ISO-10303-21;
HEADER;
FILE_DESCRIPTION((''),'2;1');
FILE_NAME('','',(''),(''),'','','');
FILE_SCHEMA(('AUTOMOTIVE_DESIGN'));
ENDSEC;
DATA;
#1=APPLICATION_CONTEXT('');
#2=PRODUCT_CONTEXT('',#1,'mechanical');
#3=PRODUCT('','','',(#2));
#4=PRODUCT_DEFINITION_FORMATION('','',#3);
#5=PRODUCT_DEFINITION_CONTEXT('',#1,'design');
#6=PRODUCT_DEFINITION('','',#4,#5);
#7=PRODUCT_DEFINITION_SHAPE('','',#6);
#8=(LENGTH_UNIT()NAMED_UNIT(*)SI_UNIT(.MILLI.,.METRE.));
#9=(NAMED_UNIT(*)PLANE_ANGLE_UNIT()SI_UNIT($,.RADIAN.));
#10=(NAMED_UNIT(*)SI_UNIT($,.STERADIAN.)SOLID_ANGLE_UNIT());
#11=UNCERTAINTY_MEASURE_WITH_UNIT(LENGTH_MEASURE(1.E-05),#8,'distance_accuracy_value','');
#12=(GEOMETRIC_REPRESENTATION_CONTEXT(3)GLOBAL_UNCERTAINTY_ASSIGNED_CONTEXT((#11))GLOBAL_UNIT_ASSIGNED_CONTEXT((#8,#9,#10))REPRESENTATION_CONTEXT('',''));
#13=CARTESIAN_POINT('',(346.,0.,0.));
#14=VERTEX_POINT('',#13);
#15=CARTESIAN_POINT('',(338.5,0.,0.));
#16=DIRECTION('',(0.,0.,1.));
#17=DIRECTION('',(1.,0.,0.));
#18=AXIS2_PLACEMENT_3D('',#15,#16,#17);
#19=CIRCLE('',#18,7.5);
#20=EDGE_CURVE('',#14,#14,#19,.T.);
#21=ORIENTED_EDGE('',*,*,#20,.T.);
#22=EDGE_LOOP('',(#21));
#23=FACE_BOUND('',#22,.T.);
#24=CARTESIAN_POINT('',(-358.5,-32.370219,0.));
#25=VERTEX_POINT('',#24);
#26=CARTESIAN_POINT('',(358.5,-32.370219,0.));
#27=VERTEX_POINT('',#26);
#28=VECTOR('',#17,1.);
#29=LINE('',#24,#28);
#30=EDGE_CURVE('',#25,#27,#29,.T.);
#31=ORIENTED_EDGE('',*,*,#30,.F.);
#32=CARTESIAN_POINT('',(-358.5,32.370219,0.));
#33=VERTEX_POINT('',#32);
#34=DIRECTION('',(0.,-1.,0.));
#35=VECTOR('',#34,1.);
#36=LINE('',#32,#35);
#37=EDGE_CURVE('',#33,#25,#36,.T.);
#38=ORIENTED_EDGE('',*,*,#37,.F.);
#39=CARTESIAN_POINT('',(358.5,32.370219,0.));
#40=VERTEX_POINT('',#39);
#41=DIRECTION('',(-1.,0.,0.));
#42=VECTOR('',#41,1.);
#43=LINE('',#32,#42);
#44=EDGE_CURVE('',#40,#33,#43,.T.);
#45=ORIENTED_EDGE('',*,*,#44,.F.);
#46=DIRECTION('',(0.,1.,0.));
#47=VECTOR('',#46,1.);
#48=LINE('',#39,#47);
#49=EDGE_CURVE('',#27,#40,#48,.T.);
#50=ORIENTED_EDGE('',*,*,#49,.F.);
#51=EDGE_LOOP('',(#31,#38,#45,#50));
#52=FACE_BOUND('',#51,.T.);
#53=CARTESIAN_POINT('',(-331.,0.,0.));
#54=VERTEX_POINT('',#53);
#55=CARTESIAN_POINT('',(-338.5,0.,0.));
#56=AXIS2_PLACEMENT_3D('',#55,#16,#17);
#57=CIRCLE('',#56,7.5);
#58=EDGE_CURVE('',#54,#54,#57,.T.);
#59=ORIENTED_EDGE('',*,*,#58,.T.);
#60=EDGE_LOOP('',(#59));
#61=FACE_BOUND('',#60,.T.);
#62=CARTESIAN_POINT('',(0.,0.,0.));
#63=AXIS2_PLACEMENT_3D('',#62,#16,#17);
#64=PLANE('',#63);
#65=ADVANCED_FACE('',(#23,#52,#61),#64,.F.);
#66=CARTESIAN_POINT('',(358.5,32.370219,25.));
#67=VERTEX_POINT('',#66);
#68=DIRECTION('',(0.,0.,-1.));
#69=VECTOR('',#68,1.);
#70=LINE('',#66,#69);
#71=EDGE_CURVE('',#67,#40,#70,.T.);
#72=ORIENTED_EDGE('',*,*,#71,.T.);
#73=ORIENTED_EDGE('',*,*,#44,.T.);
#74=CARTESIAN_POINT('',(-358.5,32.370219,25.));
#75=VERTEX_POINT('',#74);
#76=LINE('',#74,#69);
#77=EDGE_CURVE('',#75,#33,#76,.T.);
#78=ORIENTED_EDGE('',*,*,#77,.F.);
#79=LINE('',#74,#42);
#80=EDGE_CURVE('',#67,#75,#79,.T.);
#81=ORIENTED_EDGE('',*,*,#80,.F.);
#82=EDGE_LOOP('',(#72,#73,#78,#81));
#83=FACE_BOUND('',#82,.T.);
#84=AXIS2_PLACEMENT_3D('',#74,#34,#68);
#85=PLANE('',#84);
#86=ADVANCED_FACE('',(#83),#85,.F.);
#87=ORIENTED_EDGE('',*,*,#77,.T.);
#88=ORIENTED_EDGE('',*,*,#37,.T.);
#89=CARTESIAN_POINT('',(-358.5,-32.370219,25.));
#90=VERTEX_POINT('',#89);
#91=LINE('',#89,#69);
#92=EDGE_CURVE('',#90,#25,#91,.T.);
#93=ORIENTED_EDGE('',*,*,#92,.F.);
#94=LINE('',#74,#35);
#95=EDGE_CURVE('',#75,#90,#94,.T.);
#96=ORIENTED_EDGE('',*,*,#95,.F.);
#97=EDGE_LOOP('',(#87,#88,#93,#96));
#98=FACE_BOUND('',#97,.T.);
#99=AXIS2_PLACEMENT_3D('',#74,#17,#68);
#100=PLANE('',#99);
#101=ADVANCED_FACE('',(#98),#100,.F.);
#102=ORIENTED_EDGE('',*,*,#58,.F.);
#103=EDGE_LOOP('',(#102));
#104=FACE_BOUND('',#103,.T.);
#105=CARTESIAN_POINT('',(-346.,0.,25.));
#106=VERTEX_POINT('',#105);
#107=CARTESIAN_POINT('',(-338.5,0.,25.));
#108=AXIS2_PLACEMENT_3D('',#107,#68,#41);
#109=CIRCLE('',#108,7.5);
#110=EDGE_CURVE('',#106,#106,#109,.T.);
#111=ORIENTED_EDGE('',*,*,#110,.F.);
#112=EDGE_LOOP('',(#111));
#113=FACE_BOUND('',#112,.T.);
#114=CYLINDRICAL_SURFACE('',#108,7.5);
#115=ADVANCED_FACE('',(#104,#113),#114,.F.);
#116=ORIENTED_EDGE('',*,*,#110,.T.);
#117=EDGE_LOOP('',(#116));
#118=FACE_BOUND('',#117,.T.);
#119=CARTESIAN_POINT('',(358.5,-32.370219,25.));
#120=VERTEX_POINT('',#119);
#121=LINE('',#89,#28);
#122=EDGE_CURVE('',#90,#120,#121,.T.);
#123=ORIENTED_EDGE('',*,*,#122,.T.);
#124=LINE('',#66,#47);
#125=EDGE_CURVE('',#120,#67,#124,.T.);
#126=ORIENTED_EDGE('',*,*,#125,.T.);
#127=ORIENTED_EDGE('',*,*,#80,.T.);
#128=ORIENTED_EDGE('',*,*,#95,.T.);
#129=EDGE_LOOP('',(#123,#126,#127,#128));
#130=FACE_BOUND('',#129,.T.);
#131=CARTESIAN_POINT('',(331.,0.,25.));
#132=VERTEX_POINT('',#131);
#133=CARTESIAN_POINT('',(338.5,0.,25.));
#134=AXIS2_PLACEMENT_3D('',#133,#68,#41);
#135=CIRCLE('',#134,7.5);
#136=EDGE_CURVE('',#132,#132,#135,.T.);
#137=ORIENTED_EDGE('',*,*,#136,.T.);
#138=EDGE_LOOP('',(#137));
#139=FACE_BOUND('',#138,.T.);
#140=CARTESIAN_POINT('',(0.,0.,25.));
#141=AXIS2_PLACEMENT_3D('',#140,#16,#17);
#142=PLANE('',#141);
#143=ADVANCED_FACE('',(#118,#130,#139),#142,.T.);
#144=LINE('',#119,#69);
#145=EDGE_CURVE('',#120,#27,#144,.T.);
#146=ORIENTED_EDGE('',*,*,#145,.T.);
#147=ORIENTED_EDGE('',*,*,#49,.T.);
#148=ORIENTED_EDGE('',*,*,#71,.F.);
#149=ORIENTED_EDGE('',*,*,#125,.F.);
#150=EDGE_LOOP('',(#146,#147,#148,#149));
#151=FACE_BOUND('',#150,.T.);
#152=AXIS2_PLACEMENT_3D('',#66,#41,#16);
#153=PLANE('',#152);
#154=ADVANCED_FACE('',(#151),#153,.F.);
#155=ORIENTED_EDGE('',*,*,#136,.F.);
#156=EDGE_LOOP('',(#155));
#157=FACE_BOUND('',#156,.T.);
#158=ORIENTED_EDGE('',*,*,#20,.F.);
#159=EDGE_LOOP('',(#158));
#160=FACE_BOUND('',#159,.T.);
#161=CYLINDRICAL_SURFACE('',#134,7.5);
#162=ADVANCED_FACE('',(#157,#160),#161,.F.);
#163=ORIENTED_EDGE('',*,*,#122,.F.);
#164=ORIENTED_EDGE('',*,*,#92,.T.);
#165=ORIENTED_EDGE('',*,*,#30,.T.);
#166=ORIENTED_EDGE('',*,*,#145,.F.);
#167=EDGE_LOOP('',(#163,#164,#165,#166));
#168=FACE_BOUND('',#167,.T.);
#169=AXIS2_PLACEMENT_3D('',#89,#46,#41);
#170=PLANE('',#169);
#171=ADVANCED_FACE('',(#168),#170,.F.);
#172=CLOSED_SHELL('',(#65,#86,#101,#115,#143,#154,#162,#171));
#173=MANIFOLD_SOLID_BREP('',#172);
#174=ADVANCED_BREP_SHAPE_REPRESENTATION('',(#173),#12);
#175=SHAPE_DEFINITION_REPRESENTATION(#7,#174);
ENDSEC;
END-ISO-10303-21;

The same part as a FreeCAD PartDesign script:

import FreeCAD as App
import Part
import Sketcher


def add_polygon(sketch, points):
    """Adds a closed chain of lines whose ends are joined by coincident constraints."""
    first, n = sketch.GeometryCount, len(points)
    for a, b in zip(points, points[1:] + points[:1]):
        sketch.addGeometry(Part.LineSegment(App.Vector(*a, 0), App.Vector(*b, 0)), False)
    for i in range(n):
        sketch.addConstraint(Sketcher.Constraint("Coincident", first + i, 2, first + (i + 1) % n, 1))

doc = App.newDocument("Part")
params = doc.addObject("Spreadsheet::Sheet", "Params")
for row, (alias, value) in enumerate([
    ("sketch1_width", "717 mm"),
    ("pad1_length", "25 mm"),
    ("sketch2_diameter", "15 mm"),
], start=1):
    params.set(f"A{row}", alias)
    params.set(f"B{row}", "=" + value)
    params.setAlias(f"B{row}", alias)

body = doc.addObject("PartDesign::Body", "Body")

# Sketch on XY plane
sketch1 = body.newObject("Sketcher::SketchObject", "Sketch")
sketch1.AttachmentSupport = (doc.getObject("XY_Plane"), [""])
sketch1.MapMode = "FlatFace"
add_polygon(sketch1, [(-358, 32), (-358, -32), (358, -32), (358, 32)])  # lines 0-3
sketch1.addConstraint(Sketcher.Constraint("Vertical", 0))
sketch1.addConstraint(Sketcher.Constraint("Horizontal", 1))
sketch1.addConstraint(Sketcher.Constraint("Vertical", 2))
sketch1.addConstraint(Sketcher.Constraint("Horizontal", 3))
sketch1.addConstraint(Sketcher.Constraint("Symmetric", 0, 2, 2, 2, -1, 1))
sketch1.addConstraint(Sketcher.Constraint("DistanceX", 1, 1, 1, 2, 717.0))
sketch1.addConstraint(Sketcher.Constraint("DistanceY", 0, 2, 0, 1, 64.740437))
sketch1.setExpression("Constraints[9]", "Params.sketch1_width")
pad1 = body.newObject("PartDesign::Pad", "Pad")
pad1.Profile = sketch1
pad1.setExpression("Length", "Params.pad1_length")

# Sketch on XY plane
sketch2 = body.newObject("Sketcher::SketchObject", "Sketch001")
sketch2.AttachmentSupport = (doc.getObject("XY_Plane"), [""])
sketch2.MapMode = "FlatFace"
sketch2.addGeometry(Part.Circle(App.Vector(338, 0, 0), App.Vector(0, 0, 1), 8), False)
sketch2.addGeometry(Part.Circle(App.Vector(-338, 0, 0), App.Vector(0, 0, 1), 8), False)
sketch2.addConstraint(Sketcher.Constraint("Equal", 0, 1))
sketch2.addConstraint(Sketcher.Constraint("Symmetric", 0, 3, 1, 3, -1, 1))
sketch2.addConstraint(Sketcher.Constraint("PointOnObject", 0, 3, -1))
sketch2.addConstraint(Sketcher.Constraint("Diameter", 0, 15.0))
sketch2.addConstraint(Sketcher.Constraint("DistanceX", 1, 3, 0, 3, 677.0))
sketch2.setExpression("Constraints[3]", "Params.sketch2_diameter")
pocket1 = body.newObject("PartDesign::Pocket", "Pocket")
pocket1.Profile = sketch2
pocket1.Type = "ThroughAll"
pocket1.Midplane = True

doc.recompute()
